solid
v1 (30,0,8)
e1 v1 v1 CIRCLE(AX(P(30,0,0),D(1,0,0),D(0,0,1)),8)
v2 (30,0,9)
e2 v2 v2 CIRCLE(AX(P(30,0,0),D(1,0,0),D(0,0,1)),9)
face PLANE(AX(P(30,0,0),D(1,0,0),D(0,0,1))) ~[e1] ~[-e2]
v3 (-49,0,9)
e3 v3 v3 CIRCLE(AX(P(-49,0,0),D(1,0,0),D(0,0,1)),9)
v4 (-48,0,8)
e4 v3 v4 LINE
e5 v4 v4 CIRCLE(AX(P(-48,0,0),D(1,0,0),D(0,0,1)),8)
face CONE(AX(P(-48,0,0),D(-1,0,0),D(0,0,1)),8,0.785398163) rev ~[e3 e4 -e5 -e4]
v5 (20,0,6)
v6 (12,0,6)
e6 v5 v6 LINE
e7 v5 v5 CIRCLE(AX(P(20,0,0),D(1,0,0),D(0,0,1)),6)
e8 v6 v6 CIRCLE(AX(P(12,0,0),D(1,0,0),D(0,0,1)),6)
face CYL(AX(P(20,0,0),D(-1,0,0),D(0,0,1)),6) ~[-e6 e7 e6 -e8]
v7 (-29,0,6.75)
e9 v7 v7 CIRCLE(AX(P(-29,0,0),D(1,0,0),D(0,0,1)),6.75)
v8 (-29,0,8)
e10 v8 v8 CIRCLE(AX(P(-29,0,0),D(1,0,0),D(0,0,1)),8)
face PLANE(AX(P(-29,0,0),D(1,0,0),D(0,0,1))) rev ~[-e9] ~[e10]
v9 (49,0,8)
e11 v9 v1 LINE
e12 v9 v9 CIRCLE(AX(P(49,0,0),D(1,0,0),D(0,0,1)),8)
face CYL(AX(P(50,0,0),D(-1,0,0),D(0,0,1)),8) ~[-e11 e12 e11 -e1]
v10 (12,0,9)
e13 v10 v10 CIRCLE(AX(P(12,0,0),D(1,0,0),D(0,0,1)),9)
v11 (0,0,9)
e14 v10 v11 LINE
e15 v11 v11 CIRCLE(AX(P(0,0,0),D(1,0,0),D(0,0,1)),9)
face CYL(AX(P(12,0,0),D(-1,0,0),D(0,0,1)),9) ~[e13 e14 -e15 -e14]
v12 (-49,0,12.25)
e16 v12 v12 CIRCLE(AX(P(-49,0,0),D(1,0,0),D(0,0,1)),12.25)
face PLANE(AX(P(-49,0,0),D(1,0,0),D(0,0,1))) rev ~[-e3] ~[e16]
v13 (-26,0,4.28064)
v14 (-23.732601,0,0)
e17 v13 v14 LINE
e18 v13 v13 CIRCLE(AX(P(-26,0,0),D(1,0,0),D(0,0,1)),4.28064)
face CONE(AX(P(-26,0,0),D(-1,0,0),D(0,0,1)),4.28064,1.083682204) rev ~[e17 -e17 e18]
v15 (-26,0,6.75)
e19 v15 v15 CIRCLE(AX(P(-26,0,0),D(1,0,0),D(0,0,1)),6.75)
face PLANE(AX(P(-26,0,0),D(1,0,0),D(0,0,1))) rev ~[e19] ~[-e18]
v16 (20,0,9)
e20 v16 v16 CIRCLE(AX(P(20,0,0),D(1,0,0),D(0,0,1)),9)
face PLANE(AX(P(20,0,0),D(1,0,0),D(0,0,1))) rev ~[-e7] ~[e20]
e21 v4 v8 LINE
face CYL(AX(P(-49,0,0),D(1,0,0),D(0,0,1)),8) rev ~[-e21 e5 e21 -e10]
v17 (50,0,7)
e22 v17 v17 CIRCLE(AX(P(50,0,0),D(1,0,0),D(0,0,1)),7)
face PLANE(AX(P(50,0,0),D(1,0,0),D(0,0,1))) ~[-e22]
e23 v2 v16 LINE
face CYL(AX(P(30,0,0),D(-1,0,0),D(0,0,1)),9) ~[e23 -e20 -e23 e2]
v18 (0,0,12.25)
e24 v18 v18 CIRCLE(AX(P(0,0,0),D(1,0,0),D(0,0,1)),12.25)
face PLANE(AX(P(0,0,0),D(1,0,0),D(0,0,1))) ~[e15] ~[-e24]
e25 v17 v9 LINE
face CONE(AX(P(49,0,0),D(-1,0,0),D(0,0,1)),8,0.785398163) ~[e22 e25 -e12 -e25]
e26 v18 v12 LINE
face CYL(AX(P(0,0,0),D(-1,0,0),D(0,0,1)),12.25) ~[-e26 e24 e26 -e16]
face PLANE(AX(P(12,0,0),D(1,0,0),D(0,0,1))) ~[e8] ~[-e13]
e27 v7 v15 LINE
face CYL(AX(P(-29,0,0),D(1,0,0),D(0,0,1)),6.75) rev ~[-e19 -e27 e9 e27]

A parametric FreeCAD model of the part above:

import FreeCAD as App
import Part
import Sketcher
from FreeCAD import Vector
Q = App.Units.Quantity


def edges_at(feature, points):
    """Names of the edges that pass closest to the given points."""
    edges = feature.Shape.Edges
    near = lambda p: min(range(len(edges)), key=lambda i: edges[i].distToShape(Part.Vertex(*p))[0])
    return sorted({f"Edge{near(p) + 1}" for p in points})


def add_polygon(sketch, points):
    """Adds a closed chain of lines whose ends are joined by coincident constraints."""
    first, n = sketch.GeometryCount, len(points)
    for a, b in zip(points, points[1:] + points[:1]):
        sketch.addGeometry(Part.LineSegment(App.Vector(*a, 0), App.Vector(*b, 0)), False)
    for i in range(n):
        sketch.addConstraint(Sketcher.Constraint("Coincident", first + i, 2, first + (i + 1) % n, 1))

doc = App.newDocument("Part")
body = doc.addObject("PartDesign::Body", "Body")

# Sketch on XZ plane
sketch1 = body.newObject("Sketcher::SketchObject", "Sketch")
sketch1.AttachmentSupport = (doc.getObject("XZ_Plane"), [""])
sketch1.MapMode = "FlatFace"
add_polygon(sketch1, [(-49, 8), (-29, 8), (-29, 6.8), (-26, 6.8), (-26, 4.3), (-23.7, 0), (50, 0), (50, 8), (30, 8), (30, 9), (20, 9), (20, 6), (12, 6), (12, 9), (0, 9), (0, 12.2), (-49, 12.2)])  # lines 0-16
sketch1.addConstraint(Sketcher.Constraint("Horizontal", 0))
sketch1.addConstraint(Sketcher.Constraint("Vertical", 1))
sketch1.addConstraint(Sketcher.Constraint("Horizontal", 2))
sketch1.addConstraint(Sketcher.Constraint("Vertical", 3))
sketch1.addConstraint(Sketcher.Constraint("Horizontal", 5))
sketch1.addConstraint(Sketcher.Constraint("Vertical", 6))
sketch1.addConstraint(Sketcher.Constraint("Horizontal", 7))
sketch1.addConstraint(Sketcher.Constraint("Vertical", 8))
sketch1.addConstraint(Sketcher.Constraint("Horizontal", 9))
sketch1.addConstraint(Sketcher.Constraint("Vertical", 10))
sketch1.addConstraint(Sketcher.Constraint("Horizontal", 11))
sketch1.addConstraint(Sketcher.Constraint("Vertical", 12))
sketch1.addConstraint(Sketcher.Constraint("Horizontal", 13))
sketch1.addConstraint(Sketcher.Constraint("Vertical", 14))
sketch1.addConstraint(Sketcher.Constraint("Horizontal", 15))
sketch1.addConstraint(Sketcher.Constraint("Vertical", 16))
sketch1.addConstraint(Sketcher.Constraint("PointOnObject", 4, 2, -1))
sketch1.addConstraint(Sketcher.Constraint("PointOnObject", 13, 2, -2))
sketch1.addConstraint(Sketcher.Constraint("Horizontal", 0, 2, 6, 2))
sketch1.addConstraint(Sketcher.Constraint("Horizontal", 9, 2, 12, 2))
sketch1.addConstraint(Sketcher.Constraint("Equal", 0, 7))
sketch1.addConstraint(Sketcher.Constraint("Equal", 11, 6))
sketch1.addConstraint(Sketcher.Constraint("Equal", 2, 10))
sketch1.addConstraint(Sketcher.Constraint("DistanceX", 0, 1, 0, 2, Q("20 mm")))
sketch1.addConstraint(Sketcher.Constraint("DistanceX", 2, 1, 2, 2, Q("3 mm")))
sketch1.addConstraint(Sketcher.Constraint("DistanceX", 9, 2, 9, 1, Q("10 mm")))
sketch1.addConstraint(Sketcher.Constraint("DistanceX", 11, 2, 11, 1, Q("8 mm")))
sketch1.addConstraint(Sketcher.Constraint("DistanceX", 13, 2, 13, 1, Q("12 mm")))
sketch1.addConstraint(Sketcher.Constraint("DistanceX", 15, 2, 15, 1, Q("49 mm")))
sketch1.addConstraint(Sketcher.Constraint("DistanceY", 8, 1, 8, 2, Q("1 mm")))
sketch1.addConstraint(Sketcher.Constraint("DistanceY", 1, 2, 1, 1, Q("1.25 mm")))
sketch1.addConstraint(Sketcher.Constraint("DistanceY", 14, 1, 14, 2, Q("3.25 mm")))
sketch1.addConstraint(Sketcher.Constraint("DistanceX", 5, 1, 5, 2, Q("73.732601 mm")))
sketch1.addConstraint(Sketcher.Constraint("DistanceY", 3, 2, 3, 1, Q("2.46936 mm")))
revolution = body.newObject("PartDesign::Revolution", "Revolution")
revolution.Profile = sketch1
revolution.ReferenceAxis = (sketch1, ["H_Axis"])
revolution.Angle = 360
doc.recompute()

chamfer = body.newObject("PartDesign::Chamfer", "Chamfer")
chamfer.Base = (revolution, edges_at(revolution, [(50, 0, -8)]))
chamfer.Size = 1
doc.recompute()

chamfer2 = body.newObject("PartDesign::Chamfer", "Chamfer001")
chamfer2.Base = (chamfer, edges_at(chamfer, [(-49, 0, -8)]))
chamfer2.Size = 1

doc.recompute()
